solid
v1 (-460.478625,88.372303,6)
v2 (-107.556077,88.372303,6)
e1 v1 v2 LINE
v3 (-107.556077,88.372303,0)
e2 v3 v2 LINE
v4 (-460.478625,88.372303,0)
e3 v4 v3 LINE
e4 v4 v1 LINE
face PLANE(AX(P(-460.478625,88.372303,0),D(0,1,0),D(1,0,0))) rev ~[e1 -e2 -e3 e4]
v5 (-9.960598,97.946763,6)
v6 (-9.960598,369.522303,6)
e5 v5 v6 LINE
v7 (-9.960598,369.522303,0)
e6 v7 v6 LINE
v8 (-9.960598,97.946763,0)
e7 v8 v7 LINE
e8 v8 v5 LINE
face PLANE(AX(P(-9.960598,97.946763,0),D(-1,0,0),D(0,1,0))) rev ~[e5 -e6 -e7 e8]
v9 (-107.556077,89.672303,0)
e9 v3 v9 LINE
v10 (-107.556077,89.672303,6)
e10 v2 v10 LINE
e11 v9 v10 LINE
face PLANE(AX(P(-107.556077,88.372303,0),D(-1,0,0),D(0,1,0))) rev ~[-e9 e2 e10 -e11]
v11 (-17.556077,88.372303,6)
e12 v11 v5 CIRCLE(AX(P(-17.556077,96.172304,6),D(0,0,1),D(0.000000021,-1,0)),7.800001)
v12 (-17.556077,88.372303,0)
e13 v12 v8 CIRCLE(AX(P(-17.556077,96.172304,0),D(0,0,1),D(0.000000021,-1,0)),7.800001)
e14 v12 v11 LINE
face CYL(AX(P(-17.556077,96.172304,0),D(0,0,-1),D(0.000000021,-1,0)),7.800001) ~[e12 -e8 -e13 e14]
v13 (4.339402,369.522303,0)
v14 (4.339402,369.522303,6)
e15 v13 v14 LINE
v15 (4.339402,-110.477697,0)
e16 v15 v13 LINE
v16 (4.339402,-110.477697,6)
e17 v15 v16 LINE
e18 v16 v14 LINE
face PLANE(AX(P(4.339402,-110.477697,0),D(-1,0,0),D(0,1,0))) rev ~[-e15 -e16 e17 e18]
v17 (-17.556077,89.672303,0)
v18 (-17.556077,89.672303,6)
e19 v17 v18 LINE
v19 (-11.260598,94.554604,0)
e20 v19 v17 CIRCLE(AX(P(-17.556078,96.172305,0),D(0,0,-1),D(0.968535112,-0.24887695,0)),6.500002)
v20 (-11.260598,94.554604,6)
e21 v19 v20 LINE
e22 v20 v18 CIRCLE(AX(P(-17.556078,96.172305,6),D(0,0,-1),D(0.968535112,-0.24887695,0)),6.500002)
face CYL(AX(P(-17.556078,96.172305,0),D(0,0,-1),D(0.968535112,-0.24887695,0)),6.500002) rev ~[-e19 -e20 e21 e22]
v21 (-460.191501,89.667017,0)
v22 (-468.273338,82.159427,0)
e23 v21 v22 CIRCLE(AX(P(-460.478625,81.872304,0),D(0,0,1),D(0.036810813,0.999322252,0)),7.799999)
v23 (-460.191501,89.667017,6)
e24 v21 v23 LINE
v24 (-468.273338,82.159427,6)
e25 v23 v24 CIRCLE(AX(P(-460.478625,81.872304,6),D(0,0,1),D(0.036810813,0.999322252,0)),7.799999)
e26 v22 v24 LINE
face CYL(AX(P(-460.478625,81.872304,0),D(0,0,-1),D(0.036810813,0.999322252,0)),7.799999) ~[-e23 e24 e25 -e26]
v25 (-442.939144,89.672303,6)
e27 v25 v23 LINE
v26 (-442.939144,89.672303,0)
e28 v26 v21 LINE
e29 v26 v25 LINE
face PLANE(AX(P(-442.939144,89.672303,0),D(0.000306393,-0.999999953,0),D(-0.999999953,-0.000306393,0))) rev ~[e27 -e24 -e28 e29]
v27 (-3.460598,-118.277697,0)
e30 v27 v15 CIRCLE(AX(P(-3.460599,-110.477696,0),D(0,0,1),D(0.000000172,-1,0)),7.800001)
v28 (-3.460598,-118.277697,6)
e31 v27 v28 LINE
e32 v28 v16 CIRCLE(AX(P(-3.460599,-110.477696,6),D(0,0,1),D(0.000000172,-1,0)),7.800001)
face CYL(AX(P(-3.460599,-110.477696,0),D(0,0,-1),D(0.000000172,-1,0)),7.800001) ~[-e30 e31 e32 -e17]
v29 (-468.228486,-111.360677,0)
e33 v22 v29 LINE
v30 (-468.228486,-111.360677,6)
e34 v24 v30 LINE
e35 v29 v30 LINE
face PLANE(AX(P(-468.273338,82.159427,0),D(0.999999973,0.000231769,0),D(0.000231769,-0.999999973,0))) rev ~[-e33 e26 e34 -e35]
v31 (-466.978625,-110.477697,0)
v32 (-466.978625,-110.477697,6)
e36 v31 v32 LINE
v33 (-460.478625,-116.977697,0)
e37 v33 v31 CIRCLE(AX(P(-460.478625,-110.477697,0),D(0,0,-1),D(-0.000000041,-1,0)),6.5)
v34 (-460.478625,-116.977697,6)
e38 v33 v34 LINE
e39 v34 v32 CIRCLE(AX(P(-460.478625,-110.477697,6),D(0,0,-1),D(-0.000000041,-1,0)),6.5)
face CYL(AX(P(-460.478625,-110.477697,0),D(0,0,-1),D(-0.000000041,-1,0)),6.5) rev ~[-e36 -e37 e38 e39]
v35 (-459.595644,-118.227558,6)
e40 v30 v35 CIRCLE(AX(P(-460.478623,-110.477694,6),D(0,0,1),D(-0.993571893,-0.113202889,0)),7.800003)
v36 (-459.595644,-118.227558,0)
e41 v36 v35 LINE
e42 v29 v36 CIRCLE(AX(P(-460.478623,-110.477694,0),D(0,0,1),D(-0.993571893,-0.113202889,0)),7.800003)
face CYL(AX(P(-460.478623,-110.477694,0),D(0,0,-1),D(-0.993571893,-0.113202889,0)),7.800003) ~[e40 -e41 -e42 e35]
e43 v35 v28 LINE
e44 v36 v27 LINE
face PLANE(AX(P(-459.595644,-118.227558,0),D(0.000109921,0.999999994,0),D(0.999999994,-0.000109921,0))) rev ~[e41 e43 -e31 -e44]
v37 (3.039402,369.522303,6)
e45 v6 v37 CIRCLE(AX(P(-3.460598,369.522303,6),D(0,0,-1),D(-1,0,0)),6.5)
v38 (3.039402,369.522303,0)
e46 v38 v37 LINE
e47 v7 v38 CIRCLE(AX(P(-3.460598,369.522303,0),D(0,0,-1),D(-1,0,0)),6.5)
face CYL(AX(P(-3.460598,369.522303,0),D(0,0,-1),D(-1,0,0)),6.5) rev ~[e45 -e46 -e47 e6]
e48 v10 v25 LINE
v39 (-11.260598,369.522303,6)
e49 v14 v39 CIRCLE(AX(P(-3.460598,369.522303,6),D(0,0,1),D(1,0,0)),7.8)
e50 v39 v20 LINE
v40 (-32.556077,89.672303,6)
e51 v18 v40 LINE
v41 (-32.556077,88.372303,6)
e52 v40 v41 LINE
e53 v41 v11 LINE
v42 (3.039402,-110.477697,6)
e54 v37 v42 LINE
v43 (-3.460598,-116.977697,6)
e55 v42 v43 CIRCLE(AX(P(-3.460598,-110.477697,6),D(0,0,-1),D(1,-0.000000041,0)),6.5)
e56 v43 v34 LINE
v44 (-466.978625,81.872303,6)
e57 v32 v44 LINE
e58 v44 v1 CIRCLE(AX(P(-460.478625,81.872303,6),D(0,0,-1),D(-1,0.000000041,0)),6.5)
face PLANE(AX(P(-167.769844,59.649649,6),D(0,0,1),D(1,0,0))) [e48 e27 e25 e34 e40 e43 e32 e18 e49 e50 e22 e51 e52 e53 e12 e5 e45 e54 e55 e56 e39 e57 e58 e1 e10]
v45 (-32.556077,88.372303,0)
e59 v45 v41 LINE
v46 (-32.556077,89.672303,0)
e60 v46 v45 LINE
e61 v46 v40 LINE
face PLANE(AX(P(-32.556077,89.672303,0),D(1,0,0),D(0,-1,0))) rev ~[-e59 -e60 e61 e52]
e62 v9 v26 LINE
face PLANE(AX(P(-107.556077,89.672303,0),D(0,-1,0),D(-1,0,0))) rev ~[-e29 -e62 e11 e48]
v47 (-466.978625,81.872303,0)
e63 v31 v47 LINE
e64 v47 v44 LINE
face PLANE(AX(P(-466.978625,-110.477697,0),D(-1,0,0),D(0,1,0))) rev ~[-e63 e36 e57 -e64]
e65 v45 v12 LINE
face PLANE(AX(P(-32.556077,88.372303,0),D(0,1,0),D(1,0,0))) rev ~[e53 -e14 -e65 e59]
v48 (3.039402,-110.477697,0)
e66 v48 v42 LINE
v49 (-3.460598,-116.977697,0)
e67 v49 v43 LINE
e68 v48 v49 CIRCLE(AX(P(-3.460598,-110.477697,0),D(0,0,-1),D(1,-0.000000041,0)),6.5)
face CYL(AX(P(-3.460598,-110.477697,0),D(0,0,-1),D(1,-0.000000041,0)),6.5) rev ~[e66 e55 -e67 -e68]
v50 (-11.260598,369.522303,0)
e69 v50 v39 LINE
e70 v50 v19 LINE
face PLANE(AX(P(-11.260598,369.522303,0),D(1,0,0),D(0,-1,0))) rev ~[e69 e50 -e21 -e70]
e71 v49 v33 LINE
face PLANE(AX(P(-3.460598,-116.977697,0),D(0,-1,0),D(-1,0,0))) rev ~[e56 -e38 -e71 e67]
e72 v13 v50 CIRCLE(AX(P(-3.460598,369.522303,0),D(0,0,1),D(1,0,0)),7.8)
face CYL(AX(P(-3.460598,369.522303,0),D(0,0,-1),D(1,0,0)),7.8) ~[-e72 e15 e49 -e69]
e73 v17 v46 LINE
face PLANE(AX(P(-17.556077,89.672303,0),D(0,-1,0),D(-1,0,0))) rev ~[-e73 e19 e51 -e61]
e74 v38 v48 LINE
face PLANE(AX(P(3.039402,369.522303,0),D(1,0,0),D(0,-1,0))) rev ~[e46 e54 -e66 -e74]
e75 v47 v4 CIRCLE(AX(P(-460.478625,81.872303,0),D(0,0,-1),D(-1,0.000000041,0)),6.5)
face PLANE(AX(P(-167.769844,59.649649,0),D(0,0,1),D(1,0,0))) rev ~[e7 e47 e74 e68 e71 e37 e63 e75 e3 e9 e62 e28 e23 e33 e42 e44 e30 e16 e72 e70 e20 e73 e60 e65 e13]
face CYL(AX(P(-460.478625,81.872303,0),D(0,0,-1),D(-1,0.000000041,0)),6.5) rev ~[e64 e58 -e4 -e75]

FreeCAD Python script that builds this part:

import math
import FreeCAD as App
import Part
import Sketcher
from FreeCAD import Vector

doc = App.newDocument("Part")
body = doc.addObject("PartDesign::Body", "Body")

# Sketch on XY plane
sketch1 = body.newObject("Sketcher::SketchObject", "Sketch")
sketch1.AttachmentSupport = (doc.getObject("XY_Plane"), [""])
sketch1.MapMode = "FlatFace"
sketch1.addGeometry(Part.ArcOfCircle(Part.Circle(Vector(-460.5, -110.5, 0), Vector(0, 0, 1), 6.5), math.radians(-180), math.radians(-90)), False)
sketch1.addGeometry(Part.LineSegment(Vector(-467, -110.5, 0), Vector(-467, 81.9, 0)), False)
sketch1.addGeometry(Part.ArcOfCircle(Part.Circle(Vector(-460.5, 81.9, 0), Vector(0, 0, 1), 6.5), math.radians(90), math.radians(180)), False)
sketch1.addGeometry(Part.LineSegment(Vector(-460.5, 88.4, 0), Vector(-107.6, 88.4, 0)), False)
sketch1.addGeometry(Part.LineSegment(Vector(-107.6, 88.4, 0), Vector(-107.6, 89.7, 0)), False)
sketch1.addGeometry(Part.LineSegment(Vector(-107.6, 89.7, 0), Vector(-442.9, 89.7, 0)), False)
sketch1.addGeometry(Part.LineSegment(Vector(-442.9, 89.7, 0), Vector(-460.2, 89.7, 0)), False)
sketch1.addGeometry(Part.ArcOfCircle(Part.Circle(Vector(-460.5, 81.9, 0), Vector(0, 0, 1), 7.8), math.radians(88), math.radians(178)), False)
sketch1.addGeometry(Part.LineSegment(Vector(-468.3, 82.2, 0), Vector(-468.2, -111.4, 0)), False)
sketch1.addGeometry(Part.ArcOfCircle(Part.Circle(Vector(-460.5, -110.5, 0), Vector(0, 0, 1), 7.8), math.radians(-174), math.radians(-84)), False)
sketch1.addGeometry(Part.LineSegment(Vector(-459.6, -118.2, 0), Vector(-3.5, -118.3, 0)), False)
sketch1.addGeometry(Part.ArcOfCircle(Part.Circle(Vector(-3.5, -110.5, 0), Vector(0, 0, 1), 7.8), math.radians(-90), math.radians(0)), False)
sketch1.addGeometry(Part.LineSegment(Vector(4.3, -110.5, 0), Vector(4.3, 369.5, 0)), False)
sketch1.addGeometry(Part.ArcOfCircle(Part.Circle(Vector(-3.5, 369.5, 0), Vector(0, 0, 1), 7.8), math.radians(0), math.radians(180)), False)
sketch1.addGeometry(Part.LineSegment(Vector(-11.3, 369.5, 0), Vector(-11.3, 94.6, 0)), False)
sketch1.addGeometry(Part.ArcOfCircle(Part.Circle(Vector(-17.6, 96.2, 0), Vector(0, 0, 1), 6.5), math.radians(-90), math.radians(-14)), False)
sketch1.addGeometry(Part.LineSegment(Vector(-17.6, 89.7, 0), Vector(-32.6, 89.7, 0)), False)
sketch1.addGeometry(Part.LineSegment(Vector(-32.6, 89.7, 0), Vector(-32.6, 88.4, 0)), False)
sketch1.addGeometry(Part.LineSegment(Vector(-32.6, 88.4, 0), Vector(-17.6, 88.4, 0)), False)
sketch1.addGeometry(Part.ArcOfCircle(Part.Circle(Vector(-17.6, 96.2, 0), Vector(0, 0, 1), 7.8), math.radians(-90), math.radians(13)), False)
sketch1.addGeometry(Part.LineSegment(Vector(-10, 97.9, 0), Vector(-10, 369.5, 0)), False)
sketch1.addGeometry(Part.ArcOfCircle(Part.Circle(Vector(-3.5, 369.5, 0), Vector(0, 0, 1), 6.5), math.radians(0), math.radians(180)), False)
sketch1.addGeometry(Part.LineSegment(Vector(3, 369.5, 0), Vector(3, -110.5, 0)), False)
sketch1.addGeometry(Part.ArcOfCircle(Part.Circle(Vector(-3.5, -110.5, 0), Vector(0, 0, 1), 6.5), math.radians(-90), math.radians(0)), False)
sketch1.addGeometry(Part.LineSegment(Vector(-3.5, -117, 0), Vector(-460.5, -117, 0)), False)
sketch1.addConstraint(Sketcher.Constraint("Tangent", 0, 1, 1, 1))
sketch1.addConstraint(Sketcher.Constraint("Tangent", 1, 2, 2, 2))
sketch1.addConstraint(Sketcher.Constraint("Tangent", 2, 1, 3, 1))
sketch1.addConstraint(Sketcher.Constraint("Coincident", 3, 2, 4, 1))
sketch1.addConstraint(Sketcher.Constraint("Coincident", 4, 2, 5, 1))
sketch1.addConstraint(Sketcher.Constraint("Coincident", 5, 2, 6, 1))
sketch1.addConstraint(Sketcher.Constraint("Coincident", 6, 2, 7, 1))
sketch1.addConstraint(Sketcher.Constraint("Coincident", 7, 2, 8, 1))
sketch1.addConstraint(Sketcher.Constraint("Coincident", 8, 2, 9, 1))
sketch1.addConstraint(Sketcher.Constraint("Coincident", 9, 2, 10, 1))
sketch1.addConstraint(Sketcher.Constraint("Coincident", 10, 2, 11, 1))
sketch1.addConstraint(Sketcher.Constraint("Tangent", 11, 2, 12, 1))
sketch1.addConstraint(Sketcher.Constraint("Tangent", 12, 2, 13, 1))
sketch1.addConstraint(Sketcher.Constraint("Tangent", 13, 2, 14, 1))
sketch1.addConstraint(Sketcher.Constraint("Coincident", 14, 2, 15, 2))
sketch1.addConstraint(Sketcher.Constraint("Tangent", 15, 1, 16, 1))
sketch1.addConstraint(Sketcher.Constraint("Coincident", 16, 2, 17, 1))
sketch1.addConstraint(Sketcher.Constraint("Coincident", 17, 2, 18, 1))
sketch1.addConstraint(Sketcher.Constraint("Tangent", 18, 2, 19, 1))
sketch1.addConstraint(Sketcher.Constraint("Coincident", 19, 2, 20, 1))
sketch1.addConstraint(Sketcher.Constraint("Tangent", 20, 2, 21, 2))
sketch1.addConstraint(Sketcher.Constraint("Tangent", 21, 1, 22, 1))
sketch1.addConstraint(Sketcher.Constraint("Tangent", 22, 2, 23, 2))
sketch1.addConstraint(Sketcher.Constraint("Tangent", 23, 1, 24, 1))
sketch1.addConstraint(Sketcher.Constraint("Tangent", 24, 2, 0, 2))
sketch1.addConstraint(Sketcher.Constraint("Vertical", 1))
sketch1.addConstraint(Sketcher.Constraint("Horizontal", 3))
sketch1.addConstraint(Sketcher.Constraint("Vertical", 4))
sketch1.addConstraint(Sketcher.Constraint("Horizontal", 5))
sketch1.addConstraint(Sketcher.Constraint("Vertical", 12))
sketch1.addConstraint(Sketcher.Constraint("Vertical", 14))
sketch1.addConstraint(Sketcher.Constraint("Horizontal", 16))
sketch1.addConstraint(Sketcher.Constraint("Vertical", 17))
sketch1.addConstraint(Sketcher.Constraint("Horizontal", 18))
sketch1.addConstraint(Sketcher.Constraint("Vertical", 20))
sketch1.addConstraint(Sketcher.Constraint("Vertical", 22))
sketch1.addConstraint(Sketcher.Constraint("Horizontal", 24))
sketch1.addConstraint(Sketcher.Constraint("Coincident", 7, 3, 2, 3))
sketch1.addConstraint(Sketcher.Constraint("Coincident", 9, 3, 0, 3))
sketch1.addConstraint(Sketcher.Constraint("Coincident", 19, 3, 15, 3))
sketch1.addConstraint(Sketcher.Constraint("Coincident", 21, 3, 13, 3))
sketch1.addConstraint(Sketcher.Constraint("Coincident", 23, 3, 11, 3))
sketch1.addConstraint(Sketcher.Constraint("Equal", 0, 2))
sketch1.addConstraint(Sketcher.Constraint("Equal", 9, 11))
sketch1.addConstraint(Sketcher.Constraint("Equal", 11, 13))
sketch1.addConstraint(Sketcher.Constraint("Equal", 2, 15))
sketch1.addConstraint(Sketcher.Constraint("Equal", 13, 19))
sketch1.addConstraint(Sketcher.Constraint("Equal", 15, 21))
sketch1.addConstraint(Sketcher.Constraint("Horizontal", 5, 2, 15, 1))
sketch1.addConstraint(Sketcher.Constraint("Horizontal", 3, 2, 17, 2))
sketch1.addConstraint(Sketcher.Constraint("Vertical", 23, 3, 10, 2))
sketch1.addConstraint(Sketcher.Constraint("Radius", 0, 6.5))
sketch1.addConstraint(Sketcher.Constraint("Radius", 7, 7.799999))
sketch1.addConstraint(Sketcher.Constraint("Radius", 11, 7.800001))
sketch1.addConstraint(Sketcher.Constraint("DistanceX", 16, 2, 16, 1, 15.0))
sketch1.addConstraint(Sketcher.Constraint("DistanceY", 12, 1, 12, 2, 480.0))
sketch1.addConstraint(Sketcher.Constraint("DistanceX", 3, 2, 15, 3, 89.999999))
sketch1.addConstraint(Sketcher.Constraint("DistanceY", 1, 1, 1, 2, 192.35))
sketch1.addConstraint(Sketcher.Constraint("DistanceY", 14, 2, 14, 1, 274.967699))
sketch1.addConstraint(Sketcher.Constraint("DistanceX", 3, 1, 3, 2, 352.922548))
sketch1.addConstraint(Sketcher.Constraint("DistanceX", 11, 3, -1, 1, 3.460599))
sketch1.addConstraint(Sketcher.Constraint("DistanceX", 6, 2, -1, 1, 460.191501))
sketch1.addConstraint(Sketcher.Constraint("Distance", 8, 193.520109))
sketch1.addConstraint(Sketcher.Constraint("Distance", 10, 456.135049))
sketch1.addConstraint(Sketcher.Constraint("DistanceX", 5, 2, 5, 1, 335.383067))
sketch1.addConstraint(Sketcher.Constraint("DistanceY", 9, 2, -1, 1, 118.227558))
sketch1.addConstraint(Sketcher.Constraint("DistanceY", 7, 2, 6, 2, 7.50759))
pad1 = body.newObject("PartDesign::Pad", "Pad")
pad1.Profile = sketch1
pad1.Length = 6

doc.recompute()
